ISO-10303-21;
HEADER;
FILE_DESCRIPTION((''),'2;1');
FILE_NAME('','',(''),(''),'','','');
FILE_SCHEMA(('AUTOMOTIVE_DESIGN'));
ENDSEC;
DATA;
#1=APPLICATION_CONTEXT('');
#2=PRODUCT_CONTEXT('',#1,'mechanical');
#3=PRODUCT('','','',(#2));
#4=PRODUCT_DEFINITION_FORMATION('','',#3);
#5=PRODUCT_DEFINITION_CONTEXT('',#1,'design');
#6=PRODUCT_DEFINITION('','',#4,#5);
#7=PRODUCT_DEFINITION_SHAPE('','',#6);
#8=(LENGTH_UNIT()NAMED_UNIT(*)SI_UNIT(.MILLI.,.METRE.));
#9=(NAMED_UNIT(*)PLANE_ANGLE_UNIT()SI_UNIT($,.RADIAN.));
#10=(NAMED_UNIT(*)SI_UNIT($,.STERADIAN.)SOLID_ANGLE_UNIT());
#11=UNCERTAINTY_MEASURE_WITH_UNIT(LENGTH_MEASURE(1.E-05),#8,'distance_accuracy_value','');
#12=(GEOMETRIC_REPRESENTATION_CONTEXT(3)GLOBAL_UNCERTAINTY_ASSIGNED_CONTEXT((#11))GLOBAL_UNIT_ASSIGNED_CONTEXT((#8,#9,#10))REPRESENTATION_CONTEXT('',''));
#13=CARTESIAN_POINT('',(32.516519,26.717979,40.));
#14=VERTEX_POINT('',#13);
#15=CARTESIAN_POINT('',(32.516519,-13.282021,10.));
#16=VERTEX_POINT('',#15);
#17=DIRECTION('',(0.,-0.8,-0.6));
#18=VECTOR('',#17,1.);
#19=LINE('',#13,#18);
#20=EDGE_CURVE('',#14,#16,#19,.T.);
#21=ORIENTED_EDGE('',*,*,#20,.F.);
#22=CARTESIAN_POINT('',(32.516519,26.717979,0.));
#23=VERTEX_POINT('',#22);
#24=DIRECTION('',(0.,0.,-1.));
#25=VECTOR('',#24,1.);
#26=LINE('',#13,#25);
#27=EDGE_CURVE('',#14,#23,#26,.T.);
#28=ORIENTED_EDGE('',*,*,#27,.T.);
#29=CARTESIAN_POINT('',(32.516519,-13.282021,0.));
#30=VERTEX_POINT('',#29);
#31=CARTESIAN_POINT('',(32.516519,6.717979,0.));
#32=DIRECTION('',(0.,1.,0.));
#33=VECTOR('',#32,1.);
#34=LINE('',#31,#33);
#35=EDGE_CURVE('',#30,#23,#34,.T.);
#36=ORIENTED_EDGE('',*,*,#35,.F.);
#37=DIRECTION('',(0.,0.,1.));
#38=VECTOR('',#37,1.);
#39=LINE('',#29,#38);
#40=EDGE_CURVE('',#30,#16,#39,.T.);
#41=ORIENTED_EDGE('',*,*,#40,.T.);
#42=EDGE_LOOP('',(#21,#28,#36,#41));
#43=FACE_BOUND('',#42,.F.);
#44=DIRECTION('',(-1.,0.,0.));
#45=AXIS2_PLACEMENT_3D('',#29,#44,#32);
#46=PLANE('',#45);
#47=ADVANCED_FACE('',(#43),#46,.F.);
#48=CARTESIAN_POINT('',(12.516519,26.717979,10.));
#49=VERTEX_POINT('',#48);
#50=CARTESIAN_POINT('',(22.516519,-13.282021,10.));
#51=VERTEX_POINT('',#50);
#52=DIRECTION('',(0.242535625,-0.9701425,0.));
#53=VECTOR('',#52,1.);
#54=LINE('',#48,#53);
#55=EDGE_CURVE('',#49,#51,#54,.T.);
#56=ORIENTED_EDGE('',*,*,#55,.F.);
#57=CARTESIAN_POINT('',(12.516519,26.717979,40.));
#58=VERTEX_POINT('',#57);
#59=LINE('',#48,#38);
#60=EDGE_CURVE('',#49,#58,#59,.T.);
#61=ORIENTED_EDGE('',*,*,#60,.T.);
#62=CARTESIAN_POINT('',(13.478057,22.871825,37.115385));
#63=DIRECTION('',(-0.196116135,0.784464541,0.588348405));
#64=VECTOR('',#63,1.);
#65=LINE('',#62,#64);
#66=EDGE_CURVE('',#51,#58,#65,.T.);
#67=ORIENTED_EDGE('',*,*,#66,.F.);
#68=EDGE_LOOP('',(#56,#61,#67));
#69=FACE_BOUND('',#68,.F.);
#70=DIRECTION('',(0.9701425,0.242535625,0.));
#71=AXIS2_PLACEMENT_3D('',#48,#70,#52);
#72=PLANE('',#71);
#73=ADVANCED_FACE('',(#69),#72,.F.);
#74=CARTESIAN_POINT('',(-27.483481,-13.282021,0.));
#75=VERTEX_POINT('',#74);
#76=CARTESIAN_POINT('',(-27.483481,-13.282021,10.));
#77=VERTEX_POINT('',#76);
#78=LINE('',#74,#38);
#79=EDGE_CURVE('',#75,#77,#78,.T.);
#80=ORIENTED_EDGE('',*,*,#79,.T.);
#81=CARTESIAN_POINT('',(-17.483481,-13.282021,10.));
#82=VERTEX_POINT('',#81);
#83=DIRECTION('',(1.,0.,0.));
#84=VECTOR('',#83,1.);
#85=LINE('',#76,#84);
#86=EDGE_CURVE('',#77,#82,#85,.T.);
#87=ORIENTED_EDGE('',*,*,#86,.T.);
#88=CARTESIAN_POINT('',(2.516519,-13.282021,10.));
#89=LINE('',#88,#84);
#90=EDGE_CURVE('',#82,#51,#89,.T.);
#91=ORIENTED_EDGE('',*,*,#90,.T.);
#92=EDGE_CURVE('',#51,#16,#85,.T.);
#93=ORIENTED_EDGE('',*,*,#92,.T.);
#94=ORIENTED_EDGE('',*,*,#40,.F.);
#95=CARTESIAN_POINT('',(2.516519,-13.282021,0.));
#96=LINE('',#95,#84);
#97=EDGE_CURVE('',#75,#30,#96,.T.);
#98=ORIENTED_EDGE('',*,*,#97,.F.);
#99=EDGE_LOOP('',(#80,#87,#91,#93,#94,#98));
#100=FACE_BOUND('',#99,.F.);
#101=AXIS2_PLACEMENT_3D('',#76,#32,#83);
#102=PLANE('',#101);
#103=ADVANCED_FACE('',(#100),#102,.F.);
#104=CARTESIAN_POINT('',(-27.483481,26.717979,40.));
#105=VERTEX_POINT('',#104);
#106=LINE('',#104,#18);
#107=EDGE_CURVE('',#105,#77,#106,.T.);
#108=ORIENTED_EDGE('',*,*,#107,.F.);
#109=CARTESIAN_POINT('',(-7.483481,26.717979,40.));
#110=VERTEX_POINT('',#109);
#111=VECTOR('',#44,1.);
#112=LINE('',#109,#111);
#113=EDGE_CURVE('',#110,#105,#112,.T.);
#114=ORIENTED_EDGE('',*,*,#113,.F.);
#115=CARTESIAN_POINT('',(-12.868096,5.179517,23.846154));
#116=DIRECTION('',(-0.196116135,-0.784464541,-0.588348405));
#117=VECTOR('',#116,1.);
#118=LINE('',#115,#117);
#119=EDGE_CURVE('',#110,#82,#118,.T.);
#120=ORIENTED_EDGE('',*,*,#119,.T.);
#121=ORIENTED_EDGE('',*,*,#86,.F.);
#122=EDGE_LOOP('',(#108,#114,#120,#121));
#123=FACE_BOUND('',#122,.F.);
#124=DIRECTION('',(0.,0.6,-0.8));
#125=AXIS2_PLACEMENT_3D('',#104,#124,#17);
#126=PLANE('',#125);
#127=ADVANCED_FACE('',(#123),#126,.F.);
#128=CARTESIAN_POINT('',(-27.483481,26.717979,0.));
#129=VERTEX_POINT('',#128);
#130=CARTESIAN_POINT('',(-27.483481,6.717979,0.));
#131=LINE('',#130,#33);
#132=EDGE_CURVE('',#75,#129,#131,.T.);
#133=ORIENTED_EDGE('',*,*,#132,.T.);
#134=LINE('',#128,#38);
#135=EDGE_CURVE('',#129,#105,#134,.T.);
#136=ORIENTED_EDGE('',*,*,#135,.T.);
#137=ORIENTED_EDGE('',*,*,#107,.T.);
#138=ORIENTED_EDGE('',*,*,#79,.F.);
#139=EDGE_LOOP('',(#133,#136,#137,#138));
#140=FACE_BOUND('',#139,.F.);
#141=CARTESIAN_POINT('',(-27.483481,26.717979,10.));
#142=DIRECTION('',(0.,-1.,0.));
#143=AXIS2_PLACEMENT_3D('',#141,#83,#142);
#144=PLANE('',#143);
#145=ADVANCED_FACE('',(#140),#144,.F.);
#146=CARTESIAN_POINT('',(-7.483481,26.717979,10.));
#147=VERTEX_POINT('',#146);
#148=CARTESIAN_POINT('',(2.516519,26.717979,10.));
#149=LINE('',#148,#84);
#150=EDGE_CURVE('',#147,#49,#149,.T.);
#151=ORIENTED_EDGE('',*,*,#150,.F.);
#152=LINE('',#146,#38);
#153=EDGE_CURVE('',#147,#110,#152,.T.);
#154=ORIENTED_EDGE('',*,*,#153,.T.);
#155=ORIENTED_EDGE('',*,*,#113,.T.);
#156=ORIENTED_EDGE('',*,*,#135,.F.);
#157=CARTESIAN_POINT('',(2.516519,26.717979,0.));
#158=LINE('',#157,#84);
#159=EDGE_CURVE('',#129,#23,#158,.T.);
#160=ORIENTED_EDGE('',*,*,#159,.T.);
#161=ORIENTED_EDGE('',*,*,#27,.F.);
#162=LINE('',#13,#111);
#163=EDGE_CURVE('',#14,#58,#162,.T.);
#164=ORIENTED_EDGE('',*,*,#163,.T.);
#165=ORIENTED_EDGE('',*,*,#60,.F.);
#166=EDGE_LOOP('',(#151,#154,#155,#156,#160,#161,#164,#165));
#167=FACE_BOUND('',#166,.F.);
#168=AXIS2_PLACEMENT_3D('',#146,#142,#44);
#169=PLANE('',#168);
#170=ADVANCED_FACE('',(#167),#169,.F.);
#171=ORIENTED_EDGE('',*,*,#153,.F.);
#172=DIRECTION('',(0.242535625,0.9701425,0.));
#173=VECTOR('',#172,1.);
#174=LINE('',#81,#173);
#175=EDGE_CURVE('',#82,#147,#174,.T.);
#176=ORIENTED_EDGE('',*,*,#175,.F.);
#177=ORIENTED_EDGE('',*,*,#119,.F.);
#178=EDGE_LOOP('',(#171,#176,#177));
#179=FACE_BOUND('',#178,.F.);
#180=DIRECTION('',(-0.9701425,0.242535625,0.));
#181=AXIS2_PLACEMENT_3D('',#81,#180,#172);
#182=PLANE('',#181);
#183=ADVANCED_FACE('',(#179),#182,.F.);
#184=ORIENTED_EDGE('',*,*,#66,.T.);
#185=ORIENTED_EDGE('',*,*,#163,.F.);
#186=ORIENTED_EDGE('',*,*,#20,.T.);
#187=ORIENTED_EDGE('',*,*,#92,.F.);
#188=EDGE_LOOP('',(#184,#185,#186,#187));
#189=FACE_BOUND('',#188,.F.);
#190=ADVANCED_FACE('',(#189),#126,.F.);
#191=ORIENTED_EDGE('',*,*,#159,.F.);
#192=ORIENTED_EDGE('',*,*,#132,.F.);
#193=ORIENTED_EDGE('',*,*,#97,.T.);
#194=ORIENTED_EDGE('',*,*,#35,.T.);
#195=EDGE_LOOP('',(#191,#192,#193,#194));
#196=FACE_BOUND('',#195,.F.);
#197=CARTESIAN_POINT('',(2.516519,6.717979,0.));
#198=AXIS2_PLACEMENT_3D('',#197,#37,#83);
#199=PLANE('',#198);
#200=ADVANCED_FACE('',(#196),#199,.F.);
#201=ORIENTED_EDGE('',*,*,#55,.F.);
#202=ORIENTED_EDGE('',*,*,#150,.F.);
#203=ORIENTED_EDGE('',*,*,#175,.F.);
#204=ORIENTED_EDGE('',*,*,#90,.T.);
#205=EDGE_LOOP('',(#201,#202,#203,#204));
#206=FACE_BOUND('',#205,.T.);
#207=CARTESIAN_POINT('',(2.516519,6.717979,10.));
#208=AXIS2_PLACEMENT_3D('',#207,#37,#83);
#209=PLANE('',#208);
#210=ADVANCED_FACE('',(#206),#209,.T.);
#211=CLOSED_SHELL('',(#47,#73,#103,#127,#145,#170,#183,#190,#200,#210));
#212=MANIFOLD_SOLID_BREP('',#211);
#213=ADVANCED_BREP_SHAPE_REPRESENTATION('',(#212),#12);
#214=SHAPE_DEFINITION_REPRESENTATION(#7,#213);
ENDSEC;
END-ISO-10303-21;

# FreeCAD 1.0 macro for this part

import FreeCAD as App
import Part
import Sketcher


def add_polygon(sketch, points):
    """Adds a closed chain of lines whose ends are joined by coincident constraints."""
    first, n = sketch.GeometryCount, len(points)
    for a, b in zip(points, points[1:] + points[:1]):
        sketch.addGeometry(Part.LineSegment(App.Vector(*a, 0), App.Vector(*b, 0)), False)
    for i in range(n):
        sketch.addConstraint(Sketcher.Constraint("Coincident", first + i, 2, first + (i + 1) % n, 1))

doc = App.newDocument("Part")
body = doc.addObject("PartDesign::Body", "Body")

# Sketch on XY plane
sketch1 = doc.addObject("Sketcher::SketchObject", "Sketch")
body.addObject(sketch1)
sketch1.AttachmentSupport = (doc.XY_Plane, [""])
sketch1.MapMode = "FlatFace"
add_polygon(sketch1, [(-27, 27), (-27, -13), (33, -13), (33, 27)])  # lines 0-3
sketch1.addConstraint(Sketcher.Constraint("Vertical", 0))
sketch1.addConstraint(Sketcher.Constraint("Horizontal", 1))
sketch1.addConstraint(Sketcher.Constraint("Vertical", 2))
sketch1.addConstraint(Sketcher.Constraint("Horizontal", 3))
sketch1.addConstraint(Sketcher.Constraint("DistanceX", 1, 1, 1, 2, 60.0))
sketch1.addConstraint(Sketcher.Constraint("DistanceY", 0, 2, 0, 1, 40.0))
sketch1.addConstraint(Sketcher.Constraint("DistanceX", 0, 2, -1, 1, 27.483481))
sketch1.addConstraint(Sketcher.Constraint("DistanceY", 0, 2, -1, 1, 13.282021))
pad1 = doc.addObject("PartDesign::Pad", "Pad")
body.addObject(pad1)
pad1.Profile = sketch1
pad1.Length = 10

# Sketch on XY plane
sketch2 = doc.addObject("Sketcher::SketchObject", "Sketch001")
body.addObject(sketch2)
sketch2.AttachmentSupport = (doc.XY_Plane, [""])
sketch2.MapMode = "FlatFace"
sketch2.AttachmentOffset = App.Placement(App.Vector(0, 0, 10), App.Rotation())
add_polygon(sketch2, [(-7, 27), (-27, 27), (-27, -13), (-17, -13)])  # lines 0-3
add_polygon(sketch2, [(33, 27), (13, 27), (23, -13), (33, -13)])  # lines 4-7
sketch2.addConstraint(Sketcher.Constraint("Horizontal", 0))
sketch2.addConstraint(Sketcher.Constraint("Vertical", 1))
sketch2.addConstraint(Sketcher.Constraint("Horizontal", 2))
sketch2.addConstraint(Sketcher.Constraint("Horizontal", 4))
sketch2.addConstraint(Sketcher.Constraint("Horizontal", 6))
sketch2.addConstraint(Sketcher.Constraint("Vertical", 7))
sketch2.addConstraint(Sketcher.Constraint("Horizontal", 3, 2, 4, 2))
sketch2.addConstraint(Sketcher.Constraint("Horizontal", 2, 2, 5, 2))
sketch2.addConstraint(Sketcher.Constraint("Equal", 0, 4))
sketch2.addConstraint(Sketcher.Constraint("Equal", 2, 6))
sketch2.addConstraint(Sketcher.Constraint("DistanceX", 0, 2, 0, 1, 20.0))
sketch2.addConstraint(Sketcher.Constraint("DistanceX", 2, 1, 2, 2, 10.0))
sketch2.addConstraint(Sketcher.Constraint("DistanceY", 1, 2, 1, 1, 40.0))
sketch2.addConstraint(Sketcher.Constraint("DistanceX", 3, 2, 4, 2, 20.0))
sketch2.addConstraint(Sketcher.Constraint("DistanceX", 0, 2, -1, 1, 27.483481))
sketch2.addConstraint(Sketcher.Constraint("DistanceY", -1, 1, 0, 2, 26.717979))
pad2 = doc.addObject("PartDesign::Pad", "Pad001")
body.addObject(pad2)
pad2.Profile = sketch2
pad2.Length = 30

# Sketch on YZ plane
sketch3 = doc.addObject("Sketcher::SketchObject", "Sketch002")
body.addObject(sketch3)
sketch3.AttachmentSupport = (doc.YZ_Plane, [""])
sketch3.MapMode = "FlatFace"
sketch3.AttachmentOffset = App.Placement(App.Vector(0, 0, -27.483481), App.Rotation())
add_polygon(sketch3, [(27, 40), (-13, 10), (-13, 40)])  # lines 0-2
sketch3.addConstraint(Sketcher.Constraint("Vertical", 1))
sketch3.addConstraint(Sketcher.Constraint("Horizontal", 2))
sketch3.addConstraint(Sketcher.Constraint("DistanceX", 2, 1, 2, 2, 40.0))
sketch3.addConstraint(Sketcher.Constraint("DistanceY", 1, 1, 1, 2, 30.0))
sketch3.addConstraint(Sketcher.Constraint("DistanceY", -1, 1, 0, 2, 10.0))
sketch3.addConstraint(Sketcher.Constraint("DistanceX", 0, 2, -1, 1, 13.282021))
pocket1 = doc.addObject("PartDesign::Pocket", "Pocket")
body.addObject(pocket1)
pocket1.Profile = sketch3
pocket1.Length = 60
pocket1.Reversed = True

doc.recompute()
